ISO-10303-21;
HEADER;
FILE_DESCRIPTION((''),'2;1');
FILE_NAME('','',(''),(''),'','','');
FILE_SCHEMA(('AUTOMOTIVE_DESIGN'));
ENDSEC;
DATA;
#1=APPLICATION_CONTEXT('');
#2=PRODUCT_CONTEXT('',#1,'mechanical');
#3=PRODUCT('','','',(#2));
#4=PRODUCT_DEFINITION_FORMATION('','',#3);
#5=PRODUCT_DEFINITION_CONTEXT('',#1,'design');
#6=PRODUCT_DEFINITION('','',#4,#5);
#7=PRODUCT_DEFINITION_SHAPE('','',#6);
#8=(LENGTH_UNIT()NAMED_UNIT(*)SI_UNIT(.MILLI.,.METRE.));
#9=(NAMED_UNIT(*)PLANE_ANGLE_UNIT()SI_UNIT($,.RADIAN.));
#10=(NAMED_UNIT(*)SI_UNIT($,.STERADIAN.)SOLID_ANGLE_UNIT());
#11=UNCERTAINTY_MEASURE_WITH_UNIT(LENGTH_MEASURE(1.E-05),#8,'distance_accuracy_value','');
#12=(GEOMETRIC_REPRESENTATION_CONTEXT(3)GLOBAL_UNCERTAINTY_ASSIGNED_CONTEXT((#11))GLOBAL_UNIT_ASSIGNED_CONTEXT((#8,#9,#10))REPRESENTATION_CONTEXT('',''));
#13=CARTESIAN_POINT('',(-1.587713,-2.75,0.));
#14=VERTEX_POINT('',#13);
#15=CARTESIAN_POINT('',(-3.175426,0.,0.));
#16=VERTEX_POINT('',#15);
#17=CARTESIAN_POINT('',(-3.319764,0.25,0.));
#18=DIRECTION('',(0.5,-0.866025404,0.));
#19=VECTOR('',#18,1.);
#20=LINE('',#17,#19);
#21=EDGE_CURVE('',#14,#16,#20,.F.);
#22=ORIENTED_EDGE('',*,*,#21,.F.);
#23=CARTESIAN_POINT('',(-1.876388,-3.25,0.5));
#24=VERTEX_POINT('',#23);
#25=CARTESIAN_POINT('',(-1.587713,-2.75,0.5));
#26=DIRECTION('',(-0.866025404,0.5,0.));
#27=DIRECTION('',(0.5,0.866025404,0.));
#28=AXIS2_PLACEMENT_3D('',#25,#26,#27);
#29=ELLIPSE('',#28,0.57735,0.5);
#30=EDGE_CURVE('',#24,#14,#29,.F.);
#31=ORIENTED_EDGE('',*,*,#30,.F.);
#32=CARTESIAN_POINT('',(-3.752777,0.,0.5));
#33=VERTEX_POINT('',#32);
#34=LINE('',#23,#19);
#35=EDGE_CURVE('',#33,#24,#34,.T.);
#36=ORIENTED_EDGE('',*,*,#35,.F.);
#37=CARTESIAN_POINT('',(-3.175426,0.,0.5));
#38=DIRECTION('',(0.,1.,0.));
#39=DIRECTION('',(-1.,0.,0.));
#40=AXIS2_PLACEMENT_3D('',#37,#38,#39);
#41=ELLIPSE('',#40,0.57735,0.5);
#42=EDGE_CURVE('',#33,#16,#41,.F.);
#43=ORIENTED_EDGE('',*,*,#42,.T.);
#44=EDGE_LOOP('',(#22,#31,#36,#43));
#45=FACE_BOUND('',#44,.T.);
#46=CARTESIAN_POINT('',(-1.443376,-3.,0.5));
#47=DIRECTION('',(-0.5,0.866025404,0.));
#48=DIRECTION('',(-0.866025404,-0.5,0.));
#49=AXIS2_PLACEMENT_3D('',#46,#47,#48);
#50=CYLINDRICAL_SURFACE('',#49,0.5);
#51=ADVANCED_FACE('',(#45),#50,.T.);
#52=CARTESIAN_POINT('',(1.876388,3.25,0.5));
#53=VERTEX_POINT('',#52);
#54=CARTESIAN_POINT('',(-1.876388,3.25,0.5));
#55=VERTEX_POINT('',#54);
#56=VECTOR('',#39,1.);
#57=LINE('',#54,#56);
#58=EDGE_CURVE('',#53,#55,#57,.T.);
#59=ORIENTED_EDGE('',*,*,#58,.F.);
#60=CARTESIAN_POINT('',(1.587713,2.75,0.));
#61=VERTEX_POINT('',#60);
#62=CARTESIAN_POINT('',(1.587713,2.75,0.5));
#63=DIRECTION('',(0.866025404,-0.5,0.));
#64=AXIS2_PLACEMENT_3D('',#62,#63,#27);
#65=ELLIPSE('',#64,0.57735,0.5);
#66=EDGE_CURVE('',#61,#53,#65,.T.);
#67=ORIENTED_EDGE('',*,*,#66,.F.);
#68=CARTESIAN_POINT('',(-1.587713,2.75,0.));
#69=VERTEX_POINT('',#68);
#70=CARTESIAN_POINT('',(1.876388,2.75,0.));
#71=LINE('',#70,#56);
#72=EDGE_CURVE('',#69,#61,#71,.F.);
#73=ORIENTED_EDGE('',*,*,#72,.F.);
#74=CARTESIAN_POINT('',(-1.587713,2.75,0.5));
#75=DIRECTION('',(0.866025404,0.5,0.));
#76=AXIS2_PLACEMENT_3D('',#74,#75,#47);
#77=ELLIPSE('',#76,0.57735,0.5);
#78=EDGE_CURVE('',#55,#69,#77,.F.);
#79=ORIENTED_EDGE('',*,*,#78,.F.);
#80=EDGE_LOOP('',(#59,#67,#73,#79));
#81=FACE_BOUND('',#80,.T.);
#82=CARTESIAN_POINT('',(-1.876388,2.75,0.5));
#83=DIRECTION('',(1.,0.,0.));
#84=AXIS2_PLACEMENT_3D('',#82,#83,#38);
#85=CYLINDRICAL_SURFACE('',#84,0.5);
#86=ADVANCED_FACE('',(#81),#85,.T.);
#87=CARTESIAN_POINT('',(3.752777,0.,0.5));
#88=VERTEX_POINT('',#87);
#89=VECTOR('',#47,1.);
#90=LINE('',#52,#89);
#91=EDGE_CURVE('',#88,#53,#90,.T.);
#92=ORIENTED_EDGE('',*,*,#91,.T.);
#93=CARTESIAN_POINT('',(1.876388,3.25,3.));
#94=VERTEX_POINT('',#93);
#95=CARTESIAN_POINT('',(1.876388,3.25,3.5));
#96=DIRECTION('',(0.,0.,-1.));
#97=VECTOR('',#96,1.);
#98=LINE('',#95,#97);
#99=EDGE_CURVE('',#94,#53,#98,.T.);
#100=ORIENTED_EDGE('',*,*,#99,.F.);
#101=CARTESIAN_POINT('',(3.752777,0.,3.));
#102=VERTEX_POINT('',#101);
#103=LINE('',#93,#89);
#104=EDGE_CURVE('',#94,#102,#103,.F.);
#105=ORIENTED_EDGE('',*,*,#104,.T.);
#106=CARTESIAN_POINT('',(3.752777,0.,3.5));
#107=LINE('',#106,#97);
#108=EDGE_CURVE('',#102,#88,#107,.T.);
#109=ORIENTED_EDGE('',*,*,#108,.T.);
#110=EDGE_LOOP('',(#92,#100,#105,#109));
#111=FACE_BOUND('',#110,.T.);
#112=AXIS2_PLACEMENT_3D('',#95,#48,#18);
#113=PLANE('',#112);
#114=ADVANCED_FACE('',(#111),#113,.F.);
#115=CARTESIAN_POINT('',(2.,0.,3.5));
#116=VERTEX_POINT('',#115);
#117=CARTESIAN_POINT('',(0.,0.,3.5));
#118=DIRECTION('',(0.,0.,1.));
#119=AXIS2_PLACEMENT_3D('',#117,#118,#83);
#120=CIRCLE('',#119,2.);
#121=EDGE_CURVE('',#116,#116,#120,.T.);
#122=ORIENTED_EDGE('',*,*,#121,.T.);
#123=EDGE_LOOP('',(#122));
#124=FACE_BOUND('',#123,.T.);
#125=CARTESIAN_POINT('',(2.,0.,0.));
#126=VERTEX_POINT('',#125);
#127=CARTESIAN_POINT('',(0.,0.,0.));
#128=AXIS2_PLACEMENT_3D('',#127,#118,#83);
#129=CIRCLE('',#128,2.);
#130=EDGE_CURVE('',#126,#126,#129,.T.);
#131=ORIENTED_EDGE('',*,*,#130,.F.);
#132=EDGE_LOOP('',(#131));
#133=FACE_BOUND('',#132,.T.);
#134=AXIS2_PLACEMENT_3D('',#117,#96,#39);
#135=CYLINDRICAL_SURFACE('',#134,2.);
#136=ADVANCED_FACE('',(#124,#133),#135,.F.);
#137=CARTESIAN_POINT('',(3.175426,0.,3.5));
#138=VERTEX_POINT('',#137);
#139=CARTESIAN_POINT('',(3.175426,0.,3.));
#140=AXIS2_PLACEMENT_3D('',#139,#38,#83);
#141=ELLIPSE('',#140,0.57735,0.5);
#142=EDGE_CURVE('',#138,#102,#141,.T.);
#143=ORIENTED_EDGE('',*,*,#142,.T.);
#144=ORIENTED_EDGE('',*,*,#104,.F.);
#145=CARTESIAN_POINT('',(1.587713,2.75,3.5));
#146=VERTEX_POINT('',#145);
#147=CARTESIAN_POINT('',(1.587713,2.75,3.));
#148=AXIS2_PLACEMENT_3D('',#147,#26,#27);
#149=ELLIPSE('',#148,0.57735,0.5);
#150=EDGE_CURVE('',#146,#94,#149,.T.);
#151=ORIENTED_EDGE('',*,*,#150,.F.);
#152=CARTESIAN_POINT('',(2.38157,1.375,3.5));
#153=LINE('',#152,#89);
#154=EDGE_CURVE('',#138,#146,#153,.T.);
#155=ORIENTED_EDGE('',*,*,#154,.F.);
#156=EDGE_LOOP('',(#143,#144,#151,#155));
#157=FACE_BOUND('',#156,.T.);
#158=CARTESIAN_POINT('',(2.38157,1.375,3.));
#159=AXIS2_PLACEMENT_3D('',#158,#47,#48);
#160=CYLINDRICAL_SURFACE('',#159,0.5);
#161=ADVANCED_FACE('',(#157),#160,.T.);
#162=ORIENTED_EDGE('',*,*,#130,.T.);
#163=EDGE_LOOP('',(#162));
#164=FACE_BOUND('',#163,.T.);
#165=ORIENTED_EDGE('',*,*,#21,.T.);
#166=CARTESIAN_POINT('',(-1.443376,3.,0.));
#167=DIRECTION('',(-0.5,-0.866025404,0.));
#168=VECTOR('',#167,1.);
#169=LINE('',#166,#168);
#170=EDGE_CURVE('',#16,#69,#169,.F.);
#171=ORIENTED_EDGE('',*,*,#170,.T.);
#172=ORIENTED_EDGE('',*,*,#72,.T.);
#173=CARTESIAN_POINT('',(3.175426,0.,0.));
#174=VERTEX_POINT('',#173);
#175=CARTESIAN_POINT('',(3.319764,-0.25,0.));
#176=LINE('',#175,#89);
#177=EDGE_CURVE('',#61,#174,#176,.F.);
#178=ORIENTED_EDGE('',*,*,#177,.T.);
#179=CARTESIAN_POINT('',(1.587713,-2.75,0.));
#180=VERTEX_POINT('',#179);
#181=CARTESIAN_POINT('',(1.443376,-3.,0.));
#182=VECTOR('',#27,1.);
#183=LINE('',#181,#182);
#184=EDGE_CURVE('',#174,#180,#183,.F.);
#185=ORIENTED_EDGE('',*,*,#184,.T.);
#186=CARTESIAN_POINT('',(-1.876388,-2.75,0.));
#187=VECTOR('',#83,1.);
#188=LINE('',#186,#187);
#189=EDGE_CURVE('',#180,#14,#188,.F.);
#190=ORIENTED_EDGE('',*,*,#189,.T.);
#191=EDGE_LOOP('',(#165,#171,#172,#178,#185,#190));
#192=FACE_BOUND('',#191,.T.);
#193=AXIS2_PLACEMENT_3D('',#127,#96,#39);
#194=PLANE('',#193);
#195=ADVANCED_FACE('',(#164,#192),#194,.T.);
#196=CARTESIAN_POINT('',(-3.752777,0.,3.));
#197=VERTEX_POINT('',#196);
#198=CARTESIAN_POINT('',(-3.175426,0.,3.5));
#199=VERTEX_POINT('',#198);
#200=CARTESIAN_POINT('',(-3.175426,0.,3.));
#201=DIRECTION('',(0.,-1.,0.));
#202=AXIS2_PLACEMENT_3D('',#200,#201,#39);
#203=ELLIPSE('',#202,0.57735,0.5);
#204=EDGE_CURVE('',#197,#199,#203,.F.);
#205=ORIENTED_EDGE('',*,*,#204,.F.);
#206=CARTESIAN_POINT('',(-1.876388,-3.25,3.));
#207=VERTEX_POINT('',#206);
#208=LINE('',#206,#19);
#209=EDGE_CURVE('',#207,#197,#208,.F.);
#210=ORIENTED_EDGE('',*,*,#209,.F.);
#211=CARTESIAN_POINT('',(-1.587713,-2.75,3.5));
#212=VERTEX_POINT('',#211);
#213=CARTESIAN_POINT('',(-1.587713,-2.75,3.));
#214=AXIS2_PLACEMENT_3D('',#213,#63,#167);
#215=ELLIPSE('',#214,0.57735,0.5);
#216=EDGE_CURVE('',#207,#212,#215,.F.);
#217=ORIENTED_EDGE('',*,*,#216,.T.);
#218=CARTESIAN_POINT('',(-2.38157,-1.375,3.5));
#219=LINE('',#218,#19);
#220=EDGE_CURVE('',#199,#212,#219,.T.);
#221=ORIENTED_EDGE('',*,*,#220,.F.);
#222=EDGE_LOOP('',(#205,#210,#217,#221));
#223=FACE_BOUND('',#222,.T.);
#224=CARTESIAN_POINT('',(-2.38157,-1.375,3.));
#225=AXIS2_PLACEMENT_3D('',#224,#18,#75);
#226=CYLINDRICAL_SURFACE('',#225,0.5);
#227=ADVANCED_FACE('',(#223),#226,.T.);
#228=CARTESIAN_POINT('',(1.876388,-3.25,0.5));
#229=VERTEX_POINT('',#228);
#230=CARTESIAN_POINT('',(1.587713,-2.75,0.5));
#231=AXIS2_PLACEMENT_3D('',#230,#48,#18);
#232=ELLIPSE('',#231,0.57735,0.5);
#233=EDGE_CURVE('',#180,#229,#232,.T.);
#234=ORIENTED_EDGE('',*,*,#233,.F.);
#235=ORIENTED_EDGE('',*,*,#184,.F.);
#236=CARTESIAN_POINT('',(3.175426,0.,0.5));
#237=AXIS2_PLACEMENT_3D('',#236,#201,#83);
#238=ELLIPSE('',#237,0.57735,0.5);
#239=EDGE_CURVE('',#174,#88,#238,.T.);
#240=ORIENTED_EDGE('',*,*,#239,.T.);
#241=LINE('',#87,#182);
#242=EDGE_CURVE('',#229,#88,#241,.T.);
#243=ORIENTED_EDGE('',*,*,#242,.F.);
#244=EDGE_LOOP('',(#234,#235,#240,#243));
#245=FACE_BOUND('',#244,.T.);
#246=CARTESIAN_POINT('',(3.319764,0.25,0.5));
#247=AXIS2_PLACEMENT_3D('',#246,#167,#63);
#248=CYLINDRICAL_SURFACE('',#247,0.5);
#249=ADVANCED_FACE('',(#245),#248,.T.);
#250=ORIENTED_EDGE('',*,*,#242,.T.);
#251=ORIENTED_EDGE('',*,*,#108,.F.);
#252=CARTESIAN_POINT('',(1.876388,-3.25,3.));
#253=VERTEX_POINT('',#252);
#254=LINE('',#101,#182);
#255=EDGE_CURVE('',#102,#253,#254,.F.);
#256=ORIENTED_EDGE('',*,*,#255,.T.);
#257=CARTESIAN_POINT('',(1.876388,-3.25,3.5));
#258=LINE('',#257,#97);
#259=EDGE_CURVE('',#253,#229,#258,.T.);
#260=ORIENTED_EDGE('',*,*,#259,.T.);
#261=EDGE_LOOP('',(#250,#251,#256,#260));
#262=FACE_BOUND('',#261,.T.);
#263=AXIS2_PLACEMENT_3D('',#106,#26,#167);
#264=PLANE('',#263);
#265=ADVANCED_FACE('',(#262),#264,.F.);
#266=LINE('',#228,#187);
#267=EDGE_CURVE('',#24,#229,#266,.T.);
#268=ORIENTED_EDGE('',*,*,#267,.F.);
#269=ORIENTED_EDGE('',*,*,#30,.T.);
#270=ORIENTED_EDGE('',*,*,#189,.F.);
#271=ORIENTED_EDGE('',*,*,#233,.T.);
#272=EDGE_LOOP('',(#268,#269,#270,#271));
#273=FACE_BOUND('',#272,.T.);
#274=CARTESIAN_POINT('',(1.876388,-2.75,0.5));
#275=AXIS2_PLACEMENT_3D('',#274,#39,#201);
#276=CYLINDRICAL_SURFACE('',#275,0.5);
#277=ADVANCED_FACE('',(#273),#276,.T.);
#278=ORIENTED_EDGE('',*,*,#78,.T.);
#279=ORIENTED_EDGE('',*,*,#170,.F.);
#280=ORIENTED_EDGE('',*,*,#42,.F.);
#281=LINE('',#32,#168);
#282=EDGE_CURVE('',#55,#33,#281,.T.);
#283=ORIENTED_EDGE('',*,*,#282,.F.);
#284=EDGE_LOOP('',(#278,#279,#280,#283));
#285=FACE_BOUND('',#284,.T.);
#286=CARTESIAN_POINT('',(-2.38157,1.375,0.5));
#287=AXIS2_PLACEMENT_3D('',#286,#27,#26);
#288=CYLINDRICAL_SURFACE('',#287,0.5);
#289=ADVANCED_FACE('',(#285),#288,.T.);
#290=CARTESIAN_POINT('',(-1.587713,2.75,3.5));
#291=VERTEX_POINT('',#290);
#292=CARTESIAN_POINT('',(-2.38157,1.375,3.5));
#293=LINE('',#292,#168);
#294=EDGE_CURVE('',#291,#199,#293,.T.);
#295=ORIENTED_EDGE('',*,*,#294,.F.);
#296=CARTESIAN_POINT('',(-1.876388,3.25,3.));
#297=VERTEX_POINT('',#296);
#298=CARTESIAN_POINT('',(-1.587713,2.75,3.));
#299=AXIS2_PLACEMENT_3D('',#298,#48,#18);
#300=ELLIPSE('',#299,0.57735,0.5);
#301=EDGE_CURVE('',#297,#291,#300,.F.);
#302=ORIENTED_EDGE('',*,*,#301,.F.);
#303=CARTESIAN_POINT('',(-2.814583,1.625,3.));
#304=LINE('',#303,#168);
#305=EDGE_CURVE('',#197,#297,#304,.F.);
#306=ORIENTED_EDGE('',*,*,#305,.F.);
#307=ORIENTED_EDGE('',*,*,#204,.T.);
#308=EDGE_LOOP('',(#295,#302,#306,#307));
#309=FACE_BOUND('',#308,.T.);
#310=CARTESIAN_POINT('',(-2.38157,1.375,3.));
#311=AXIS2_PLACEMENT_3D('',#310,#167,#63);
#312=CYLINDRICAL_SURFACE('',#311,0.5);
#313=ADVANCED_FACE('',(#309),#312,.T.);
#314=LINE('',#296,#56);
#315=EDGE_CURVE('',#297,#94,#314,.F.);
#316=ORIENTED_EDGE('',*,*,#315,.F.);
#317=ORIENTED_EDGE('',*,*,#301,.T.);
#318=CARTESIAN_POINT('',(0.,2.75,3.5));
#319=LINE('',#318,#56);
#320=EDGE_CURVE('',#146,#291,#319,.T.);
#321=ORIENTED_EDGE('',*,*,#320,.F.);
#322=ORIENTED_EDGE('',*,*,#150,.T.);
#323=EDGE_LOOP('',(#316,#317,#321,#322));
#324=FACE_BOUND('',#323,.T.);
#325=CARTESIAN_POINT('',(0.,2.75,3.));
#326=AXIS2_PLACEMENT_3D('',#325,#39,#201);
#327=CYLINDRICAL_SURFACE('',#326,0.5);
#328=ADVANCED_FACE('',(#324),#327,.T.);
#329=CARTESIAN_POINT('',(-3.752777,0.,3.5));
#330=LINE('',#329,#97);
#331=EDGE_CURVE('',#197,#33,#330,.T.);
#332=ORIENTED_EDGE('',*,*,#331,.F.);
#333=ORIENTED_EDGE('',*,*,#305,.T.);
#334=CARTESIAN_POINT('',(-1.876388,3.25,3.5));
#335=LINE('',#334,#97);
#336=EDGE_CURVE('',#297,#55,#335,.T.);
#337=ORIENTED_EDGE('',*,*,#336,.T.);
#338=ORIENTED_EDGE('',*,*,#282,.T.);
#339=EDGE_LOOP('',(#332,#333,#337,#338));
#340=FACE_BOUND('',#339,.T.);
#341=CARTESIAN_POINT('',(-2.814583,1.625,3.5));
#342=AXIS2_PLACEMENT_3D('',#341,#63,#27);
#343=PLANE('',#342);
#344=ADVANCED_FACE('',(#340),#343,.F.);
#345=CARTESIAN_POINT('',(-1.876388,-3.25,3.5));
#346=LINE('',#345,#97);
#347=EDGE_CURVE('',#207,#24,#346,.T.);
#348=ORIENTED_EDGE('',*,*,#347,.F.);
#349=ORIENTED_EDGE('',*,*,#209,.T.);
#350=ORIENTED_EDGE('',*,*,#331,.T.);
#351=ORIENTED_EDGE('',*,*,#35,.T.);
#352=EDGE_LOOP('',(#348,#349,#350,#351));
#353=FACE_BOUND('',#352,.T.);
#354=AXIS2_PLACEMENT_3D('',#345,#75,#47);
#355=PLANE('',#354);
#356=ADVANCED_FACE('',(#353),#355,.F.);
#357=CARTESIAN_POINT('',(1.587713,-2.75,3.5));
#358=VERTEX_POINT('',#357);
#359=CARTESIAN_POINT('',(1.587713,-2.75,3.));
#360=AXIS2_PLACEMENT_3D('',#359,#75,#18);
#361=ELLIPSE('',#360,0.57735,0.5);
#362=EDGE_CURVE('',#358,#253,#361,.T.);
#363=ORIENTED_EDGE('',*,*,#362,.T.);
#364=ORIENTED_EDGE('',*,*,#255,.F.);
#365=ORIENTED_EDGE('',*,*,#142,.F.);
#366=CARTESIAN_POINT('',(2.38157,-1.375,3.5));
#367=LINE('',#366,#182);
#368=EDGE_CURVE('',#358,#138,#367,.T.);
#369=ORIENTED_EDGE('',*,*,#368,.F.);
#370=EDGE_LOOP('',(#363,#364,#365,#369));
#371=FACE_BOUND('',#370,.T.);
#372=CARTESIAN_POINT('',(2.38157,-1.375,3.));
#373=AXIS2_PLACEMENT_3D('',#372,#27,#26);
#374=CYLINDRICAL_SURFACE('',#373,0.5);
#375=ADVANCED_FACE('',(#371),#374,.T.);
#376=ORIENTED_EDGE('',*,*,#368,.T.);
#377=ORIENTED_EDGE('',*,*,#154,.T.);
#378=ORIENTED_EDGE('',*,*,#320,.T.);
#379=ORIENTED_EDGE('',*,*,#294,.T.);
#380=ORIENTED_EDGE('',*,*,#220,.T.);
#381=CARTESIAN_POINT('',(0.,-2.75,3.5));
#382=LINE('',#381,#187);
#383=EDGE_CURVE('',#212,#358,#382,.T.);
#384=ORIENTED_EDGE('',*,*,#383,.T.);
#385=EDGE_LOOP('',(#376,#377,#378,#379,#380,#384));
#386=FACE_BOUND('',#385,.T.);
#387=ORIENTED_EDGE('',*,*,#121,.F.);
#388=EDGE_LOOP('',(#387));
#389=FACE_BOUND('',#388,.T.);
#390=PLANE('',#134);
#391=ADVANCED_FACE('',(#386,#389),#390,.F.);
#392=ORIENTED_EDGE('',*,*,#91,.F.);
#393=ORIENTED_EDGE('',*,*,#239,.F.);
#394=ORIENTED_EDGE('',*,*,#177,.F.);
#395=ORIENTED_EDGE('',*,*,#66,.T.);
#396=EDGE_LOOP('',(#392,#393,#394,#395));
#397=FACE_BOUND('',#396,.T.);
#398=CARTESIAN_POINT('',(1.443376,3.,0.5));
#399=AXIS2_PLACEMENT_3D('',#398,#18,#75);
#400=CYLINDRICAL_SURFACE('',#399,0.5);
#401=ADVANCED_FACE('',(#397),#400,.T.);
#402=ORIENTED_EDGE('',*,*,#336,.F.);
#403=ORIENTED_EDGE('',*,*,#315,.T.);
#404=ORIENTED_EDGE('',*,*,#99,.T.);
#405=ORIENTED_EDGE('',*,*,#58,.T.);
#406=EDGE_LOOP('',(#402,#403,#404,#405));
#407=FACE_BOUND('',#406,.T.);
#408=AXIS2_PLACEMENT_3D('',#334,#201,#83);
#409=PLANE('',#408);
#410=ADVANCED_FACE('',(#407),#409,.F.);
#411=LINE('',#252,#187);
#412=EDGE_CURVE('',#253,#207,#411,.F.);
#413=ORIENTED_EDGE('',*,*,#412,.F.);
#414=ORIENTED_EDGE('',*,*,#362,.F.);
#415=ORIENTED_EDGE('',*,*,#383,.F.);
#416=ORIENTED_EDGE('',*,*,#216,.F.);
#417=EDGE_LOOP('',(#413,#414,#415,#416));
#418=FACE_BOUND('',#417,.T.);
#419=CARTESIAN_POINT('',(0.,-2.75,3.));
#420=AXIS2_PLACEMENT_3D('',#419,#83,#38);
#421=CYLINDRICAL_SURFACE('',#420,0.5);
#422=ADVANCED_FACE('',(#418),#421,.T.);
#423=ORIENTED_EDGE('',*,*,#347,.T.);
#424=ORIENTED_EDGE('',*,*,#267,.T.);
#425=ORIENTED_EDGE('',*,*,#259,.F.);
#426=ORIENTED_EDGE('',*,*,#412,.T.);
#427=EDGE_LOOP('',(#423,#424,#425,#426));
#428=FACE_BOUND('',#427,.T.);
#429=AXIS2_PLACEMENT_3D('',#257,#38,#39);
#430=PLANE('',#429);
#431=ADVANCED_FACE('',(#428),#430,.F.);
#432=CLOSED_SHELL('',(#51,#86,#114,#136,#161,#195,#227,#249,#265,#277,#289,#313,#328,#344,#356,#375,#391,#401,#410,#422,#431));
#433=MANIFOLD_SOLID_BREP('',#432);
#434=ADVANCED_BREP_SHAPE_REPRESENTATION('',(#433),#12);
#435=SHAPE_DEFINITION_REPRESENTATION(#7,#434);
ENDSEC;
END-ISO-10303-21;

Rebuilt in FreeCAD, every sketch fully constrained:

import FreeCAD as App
import Part
import Sketcher

V = App.Vector
Q = App.Units.Quantity


def edges_at(feature, points):
    """Names of the edges that pass closest to the given points."""
    edges = feature.Shape.Edges
    near = lambda p: min(range(len(edges)), key=lambda i: edges[i].distToShape(Part.Vertex(*p))[0])
    return sorted({f"Edge{near(p) + 1}" for p in points})

doc = App.newDocument("Part")
body = doc.addObject("PartDesign::Body", "Body")

sketch1 = body.newObject("Sketcher::SketchObject", "Sketch")
sketch1.AttachmentSupport = (doc.getObject("XY_Plane"), [""])
sketch1.MapMode = "FlatFace"
sketch1.addGeometry(Part.LineSegment(V(-1.876388, 3.25, 0), V(-3.752777, 0, 0)), False)
sketch1.addGeometry(Part.LineSegment(V(-3.752777, 0, 0), V(-1.876388, -3.25, 0)), False)
sketch1.addGeometry(Part.LineSegment(V(-1.876388, -3.25, 0), V(1.876388, -3.25, 0)), False)
sketch1.addGeometry(Part.LineSegment(V(1.876388, -3.25, 0), V(3.752777, 0, 0)), False)
sketch1.addGeometry(Part.LineSegment(V(3.752777, 0, 0), V(1.876388, 3.25, 0)), False)
sketch1.addGeometry(Part.LineSegment(V(1.876388, 3.25, 0), V(-1.876388, 3.25, 0)), False)
sketch1.addGeometry(Part.Circle(V(0, 0, 0), V(0, 0, 1), 2), False)
sketch1.addConstraint(Sketcher.Constraint("Coincident", 0, 2, 1, 1))
sketch1.addConstraint(Sketcher.Constraint("Coincident", 1, 2, 2, 1))
sketch1.addConstraint(Sketcher.Constraint("Coincident", 2, 2, 3, 1))
sketch1.addConstraint(Sketcher.Constraint("Coincident", 3, 2, 4, 1))
sketch1.addConstraint(Sketcher.Constraint("Coincident", 4, 2, 5, 1))
sketch1.addConstraint(Sketcher.Constraint("Coincident", 5, 2, 0, 1))
sketch1.addConstraint(Sketcher.Constraint("Horizontal", 2))
sketch1.addConstraint(Sketcher.Constraint("Horizontal", 5))
sketch1.addConstraint(Sketcher.Constraint("Coincident", 6, 3, -1, 1))
sketch1.addConstraint(Sketcher.Constraint("Symmetric", 0, 2, 3, 2, -1, 1))
sketch1.addConstraint(Sketcher.Constraint("Symmetric", 1, 2, 4, 2, -1, 1))
sketch1.addConstraint(Sketcher.Constraint("PointOnObject", 0, 2, -1))
sketch1.addConstraint(Sketcher.Constraint("Parallel", 0, 3))
sketch1.addConstraint(Sketcher.Constraint("Vertical", 2, 2, 4, 2))
sketch1.addConstraint(Sketcher.Constraint("Diameter", 6, Q("4 mm")))
sketch1.addConstraint(Sketcher.Constraint("Angle", 0, Q("-120 deg")))
sketch1.addConstraint(Sketcher.Constraint("DistanceY", 2, 2, 4, 2, Q("6.5 mm")))
sketch1.addConstraint(Sketcher.Constraint("DistanceX", 2, 1, 2, 2, Q("3.752777 mm")))
pad1 = body.newObject("PartDesign::Pad", "Pad")
pad1.Profile = sketch1
pad1.Length = 3.5
doc.recompute()

fillet = body.newObject("PartDesign::Fillet", "Fillet")
fillet.Base = (pad1, edges_at(pad1, [
    (-2.815, 1.625, 0),
    (0, 3.25, 0),
    (2.815, 1.625, 0),
    (2.815, -1.625, 0),
    (0, -3.25, 3.5),
    (0, -3.25, 0),
    (-2.815, -1.625, 0),
    (2.815, -1.625, 3.5),
    (2.815, 1.625, 3.5),
    (0, 3.25, 3.5),
    (-2.815, 1.625, 3.5),
    (-2.815, -1.625, 3.5),
]))
fillet.Radius = 0.5

doc.recompute()
